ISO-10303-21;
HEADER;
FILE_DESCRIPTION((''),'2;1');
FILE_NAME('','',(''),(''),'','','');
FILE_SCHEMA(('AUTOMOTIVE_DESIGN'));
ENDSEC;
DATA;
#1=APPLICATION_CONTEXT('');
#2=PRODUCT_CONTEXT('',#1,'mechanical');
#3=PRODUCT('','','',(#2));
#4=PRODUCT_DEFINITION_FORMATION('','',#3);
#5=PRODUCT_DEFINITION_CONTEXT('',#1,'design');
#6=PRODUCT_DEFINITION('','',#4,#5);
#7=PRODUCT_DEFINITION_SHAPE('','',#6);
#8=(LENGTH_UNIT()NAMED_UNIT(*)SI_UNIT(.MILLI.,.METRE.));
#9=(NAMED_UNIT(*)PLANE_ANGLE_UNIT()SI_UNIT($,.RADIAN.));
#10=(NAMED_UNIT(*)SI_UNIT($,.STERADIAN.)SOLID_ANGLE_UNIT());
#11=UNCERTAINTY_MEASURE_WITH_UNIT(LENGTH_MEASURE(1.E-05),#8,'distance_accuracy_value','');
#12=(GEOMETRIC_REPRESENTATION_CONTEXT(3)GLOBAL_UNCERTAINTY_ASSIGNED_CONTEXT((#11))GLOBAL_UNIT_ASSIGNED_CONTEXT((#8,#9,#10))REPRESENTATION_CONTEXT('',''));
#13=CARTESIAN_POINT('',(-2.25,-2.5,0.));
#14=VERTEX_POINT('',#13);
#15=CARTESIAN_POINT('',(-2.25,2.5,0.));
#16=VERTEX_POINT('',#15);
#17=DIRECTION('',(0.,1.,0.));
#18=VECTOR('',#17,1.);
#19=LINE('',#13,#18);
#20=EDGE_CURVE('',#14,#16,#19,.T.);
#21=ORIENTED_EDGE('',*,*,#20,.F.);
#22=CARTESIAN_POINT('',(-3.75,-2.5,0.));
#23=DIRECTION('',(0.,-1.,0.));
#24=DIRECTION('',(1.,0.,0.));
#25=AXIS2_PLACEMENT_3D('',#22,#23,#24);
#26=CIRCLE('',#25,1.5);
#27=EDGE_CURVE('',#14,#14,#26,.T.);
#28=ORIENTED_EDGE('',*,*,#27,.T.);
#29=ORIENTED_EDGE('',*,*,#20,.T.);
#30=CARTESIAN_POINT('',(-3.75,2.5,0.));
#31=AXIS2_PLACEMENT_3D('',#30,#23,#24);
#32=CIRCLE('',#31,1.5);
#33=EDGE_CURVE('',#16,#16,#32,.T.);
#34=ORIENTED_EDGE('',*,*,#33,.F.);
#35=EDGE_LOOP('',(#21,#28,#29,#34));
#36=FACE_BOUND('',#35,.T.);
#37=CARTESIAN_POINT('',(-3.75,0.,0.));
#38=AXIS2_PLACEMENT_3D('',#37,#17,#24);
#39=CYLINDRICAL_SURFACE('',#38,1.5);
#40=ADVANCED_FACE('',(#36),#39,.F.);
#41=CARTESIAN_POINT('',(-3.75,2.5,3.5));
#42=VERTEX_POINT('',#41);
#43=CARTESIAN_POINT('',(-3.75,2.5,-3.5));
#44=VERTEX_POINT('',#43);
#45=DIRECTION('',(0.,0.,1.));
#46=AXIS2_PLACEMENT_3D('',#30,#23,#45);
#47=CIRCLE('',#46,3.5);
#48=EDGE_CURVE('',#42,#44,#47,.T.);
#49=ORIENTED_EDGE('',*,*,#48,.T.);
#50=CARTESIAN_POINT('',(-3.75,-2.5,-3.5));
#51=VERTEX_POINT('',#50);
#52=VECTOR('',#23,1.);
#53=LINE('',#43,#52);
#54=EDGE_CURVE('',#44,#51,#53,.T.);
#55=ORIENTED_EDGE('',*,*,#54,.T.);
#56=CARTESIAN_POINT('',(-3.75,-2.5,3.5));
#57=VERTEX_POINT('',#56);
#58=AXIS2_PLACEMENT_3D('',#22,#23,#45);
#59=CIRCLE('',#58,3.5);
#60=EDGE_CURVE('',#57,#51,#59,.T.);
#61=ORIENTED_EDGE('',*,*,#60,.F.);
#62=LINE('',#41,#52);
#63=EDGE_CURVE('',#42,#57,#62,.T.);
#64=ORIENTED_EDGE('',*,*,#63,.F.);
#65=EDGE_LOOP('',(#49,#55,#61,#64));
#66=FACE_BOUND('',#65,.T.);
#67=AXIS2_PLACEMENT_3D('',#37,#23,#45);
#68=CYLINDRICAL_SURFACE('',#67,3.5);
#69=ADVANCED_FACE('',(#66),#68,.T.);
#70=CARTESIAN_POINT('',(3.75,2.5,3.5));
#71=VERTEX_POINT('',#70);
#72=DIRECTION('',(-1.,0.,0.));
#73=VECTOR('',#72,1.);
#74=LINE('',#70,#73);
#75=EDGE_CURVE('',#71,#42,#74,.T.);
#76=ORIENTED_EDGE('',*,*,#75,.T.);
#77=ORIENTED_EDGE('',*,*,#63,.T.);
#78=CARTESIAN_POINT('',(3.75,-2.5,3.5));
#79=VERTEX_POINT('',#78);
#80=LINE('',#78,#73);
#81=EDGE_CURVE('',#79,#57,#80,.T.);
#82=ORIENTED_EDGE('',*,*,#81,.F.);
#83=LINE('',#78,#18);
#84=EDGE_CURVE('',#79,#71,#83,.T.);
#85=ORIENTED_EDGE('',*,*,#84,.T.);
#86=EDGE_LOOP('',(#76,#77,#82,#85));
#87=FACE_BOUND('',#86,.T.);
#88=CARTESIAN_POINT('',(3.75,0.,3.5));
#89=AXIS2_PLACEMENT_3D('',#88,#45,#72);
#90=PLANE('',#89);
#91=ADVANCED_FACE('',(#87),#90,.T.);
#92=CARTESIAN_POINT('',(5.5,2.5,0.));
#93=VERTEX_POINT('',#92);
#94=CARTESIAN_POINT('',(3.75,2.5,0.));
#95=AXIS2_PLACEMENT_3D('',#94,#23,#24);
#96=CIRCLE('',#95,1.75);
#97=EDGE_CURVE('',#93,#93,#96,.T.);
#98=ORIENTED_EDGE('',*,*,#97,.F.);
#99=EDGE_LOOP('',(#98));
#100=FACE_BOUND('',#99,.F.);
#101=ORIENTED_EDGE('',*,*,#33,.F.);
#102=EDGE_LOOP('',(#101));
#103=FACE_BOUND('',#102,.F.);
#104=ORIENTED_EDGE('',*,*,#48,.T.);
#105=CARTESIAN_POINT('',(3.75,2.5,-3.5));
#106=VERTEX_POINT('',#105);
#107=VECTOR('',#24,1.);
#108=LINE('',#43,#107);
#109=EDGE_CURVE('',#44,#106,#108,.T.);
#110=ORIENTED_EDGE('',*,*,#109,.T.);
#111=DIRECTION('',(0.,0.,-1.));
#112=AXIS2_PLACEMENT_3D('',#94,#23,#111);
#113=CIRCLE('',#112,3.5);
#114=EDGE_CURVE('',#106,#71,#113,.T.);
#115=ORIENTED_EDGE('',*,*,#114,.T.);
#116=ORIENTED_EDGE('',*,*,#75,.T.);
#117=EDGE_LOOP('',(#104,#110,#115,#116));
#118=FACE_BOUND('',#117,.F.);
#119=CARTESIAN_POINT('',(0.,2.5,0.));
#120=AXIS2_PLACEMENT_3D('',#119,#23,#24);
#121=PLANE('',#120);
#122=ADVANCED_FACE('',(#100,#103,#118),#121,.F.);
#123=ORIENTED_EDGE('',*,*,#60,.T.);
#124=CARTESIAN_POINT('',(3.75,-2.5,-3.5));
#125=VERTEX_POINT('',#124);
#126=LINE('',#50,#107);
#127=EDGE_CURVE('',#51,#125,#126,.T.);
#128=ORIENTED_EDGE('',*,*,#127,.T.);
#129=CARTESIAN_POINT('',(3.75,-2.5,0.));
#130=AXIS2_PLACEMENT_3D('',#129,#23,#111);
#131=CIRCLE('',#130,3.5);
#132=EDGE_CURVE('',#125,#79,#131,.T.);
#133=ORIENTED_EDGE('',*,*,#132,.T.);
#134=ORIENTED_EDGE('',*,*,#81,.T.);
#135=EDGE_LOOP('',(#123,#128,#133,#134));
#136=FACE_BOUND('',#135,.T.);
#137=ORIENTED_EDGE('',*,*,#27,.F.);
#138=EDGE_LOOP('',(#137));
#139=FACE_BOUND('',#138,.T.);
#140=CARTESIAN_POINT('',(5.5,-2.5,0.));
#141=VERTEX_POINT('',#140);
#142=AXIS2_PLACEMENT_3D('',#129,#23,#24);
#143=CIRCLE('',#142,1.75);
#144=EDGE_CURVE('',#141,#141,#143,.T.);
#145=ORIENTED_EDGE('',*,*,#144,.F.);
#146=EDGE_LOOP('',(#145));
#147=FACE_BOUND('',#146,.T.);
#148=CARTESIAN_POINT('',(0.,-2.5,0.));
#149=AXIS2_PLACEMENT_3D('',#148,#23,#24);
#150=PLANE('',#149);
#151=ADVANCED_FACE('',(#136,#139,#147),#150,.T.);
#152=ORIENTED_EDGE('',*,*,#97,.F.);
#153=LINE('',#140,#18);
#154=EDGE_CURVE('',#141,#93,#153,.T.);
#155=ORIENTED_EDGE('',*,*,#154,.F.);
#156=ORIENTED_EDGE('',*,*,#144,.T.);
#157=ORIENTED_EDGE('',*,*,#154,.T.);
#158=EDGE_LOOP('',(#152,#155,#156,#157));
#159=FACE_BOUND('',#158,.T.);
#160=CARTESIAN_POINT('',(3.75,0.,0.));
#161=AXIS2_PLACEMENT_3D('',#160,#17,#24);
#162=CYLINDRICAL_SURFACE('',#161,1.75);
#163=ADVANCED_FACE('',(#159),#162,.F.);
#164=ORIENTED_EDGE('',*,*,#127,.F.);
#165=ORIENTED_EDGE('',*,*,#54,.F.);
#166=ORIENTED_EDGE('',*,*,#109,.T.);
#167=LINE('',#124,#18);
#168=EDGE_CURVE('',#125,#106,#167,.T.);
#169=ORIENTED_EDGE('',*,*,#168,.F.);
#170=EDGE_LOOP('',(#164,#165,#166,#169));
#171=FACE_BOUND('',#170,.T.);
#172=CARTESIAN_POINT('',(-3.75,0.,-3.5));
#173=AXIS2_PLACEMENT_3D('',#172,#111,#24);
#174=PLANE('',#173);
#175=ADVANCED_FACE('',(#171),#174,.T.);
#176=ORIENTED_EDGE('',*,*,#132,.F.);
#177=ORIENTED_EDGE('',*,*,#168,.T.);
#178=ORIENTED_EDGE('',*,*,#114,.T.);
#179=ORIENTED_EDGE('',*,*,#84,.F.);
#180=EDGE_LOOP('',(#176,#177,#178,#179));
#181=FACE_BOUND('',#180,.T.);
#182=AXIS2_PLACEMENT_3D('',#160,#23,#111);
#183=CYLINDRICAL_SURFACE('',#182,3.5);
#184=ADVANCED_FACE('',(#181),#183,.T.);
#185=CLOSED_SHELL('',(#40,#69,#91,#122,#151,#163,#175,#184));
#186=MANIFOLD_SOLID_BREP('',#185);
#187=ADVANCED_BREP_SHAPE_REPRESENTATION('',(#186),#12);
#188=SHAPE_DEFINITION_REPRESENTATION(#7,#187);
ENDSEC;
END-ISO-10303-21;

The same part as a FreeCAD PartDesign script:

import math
import FreeCAD as App
import Part
import Sketcher
Q = App.Units.Quantity

doc = App.newDocument("Part")
body = doc.addObject("PartDesign::Body", "Body")

# Sketch on XZ plane
sketch1 = body.newObject("Sketcher::SketchObject", "Sketch")
sketch1.AttachmentSupport = (doc.getObject("XZ_Plane"), [""])
sketch1.MapMode = "FlatFace"
sketch1.addGeometry([
    Part.LineSegment(App.Vector(3.8, 3.5, 0), App.Vector(-3.8, 3.5, 0)),  # 0
    Part.ArcOfCircle(Part.Circle(App.Vector(-3.8, 0, 0), App.Vector(0, 0, 1), 3.5), math.radians(90), math.radians(270)),  # 1
    Part.LineSegment(App.Vector(-3.8, -3.5, 0), App.Vector(3.8, -3.5, 0)),  # 2
    Part.ArcOfCircle(Part.Circle(App.Vector(3.8, 0, 0), App.Vector(0, 0, 1), 3.5), math.radians(-90), math.radians(90)),  # 3
    Part.Circle(App.Vector(-3.8, 0, 0), App.Vector(0, 0, 1), 1.5),  # 4
    Part.Circle(App.Vector(3.8, 0, 0), App.Vector(0, 0, 1), 1.8),  # 5
], False)
sketch1.addConstraint([
    Sketcher.Constraint("Tangent", 0, 2, 1, 1),
    Sketcher.Constraint("Tangent", 1, 2, 2, 1),
    Sketcher.Constraint("Tangent", 2, 2, 3, 1),
    Sketcher.Constraint("Tangent", 3, 2, 0, 1),
    Sketcher.Constraint("Horizontal", 0),
    Sketcher.Constraint("Horizontal", 2),
    Sketcher.Constraint("Coincident", 4, 3, 1, 3),
    Sketcher.Constraint("Coincident", 5, 3, 3, 3),
    Sketcher.Constraint("Symmetric", 1, 3, 3, 3, -1, 1),
    Sketcher.Constraint("Diameter", 4, Q("3 mm")),
    Sketcher.Constraint("Diameter", 5, Q("3.5 mm")),
    Sketcher.Constraint("Radius", 1, Q("3.5 mm")),
    Sketcher.Constraint("DistanceX", 0, 2, 0, 1, Q("7.5 mm")),
])
pad1 = body.newObject("PartDesign::Pad", "Pad")
pad1.Profile = sketch1
pad1.Length = 5
pad1.Midplane = True

doc.recompute()
